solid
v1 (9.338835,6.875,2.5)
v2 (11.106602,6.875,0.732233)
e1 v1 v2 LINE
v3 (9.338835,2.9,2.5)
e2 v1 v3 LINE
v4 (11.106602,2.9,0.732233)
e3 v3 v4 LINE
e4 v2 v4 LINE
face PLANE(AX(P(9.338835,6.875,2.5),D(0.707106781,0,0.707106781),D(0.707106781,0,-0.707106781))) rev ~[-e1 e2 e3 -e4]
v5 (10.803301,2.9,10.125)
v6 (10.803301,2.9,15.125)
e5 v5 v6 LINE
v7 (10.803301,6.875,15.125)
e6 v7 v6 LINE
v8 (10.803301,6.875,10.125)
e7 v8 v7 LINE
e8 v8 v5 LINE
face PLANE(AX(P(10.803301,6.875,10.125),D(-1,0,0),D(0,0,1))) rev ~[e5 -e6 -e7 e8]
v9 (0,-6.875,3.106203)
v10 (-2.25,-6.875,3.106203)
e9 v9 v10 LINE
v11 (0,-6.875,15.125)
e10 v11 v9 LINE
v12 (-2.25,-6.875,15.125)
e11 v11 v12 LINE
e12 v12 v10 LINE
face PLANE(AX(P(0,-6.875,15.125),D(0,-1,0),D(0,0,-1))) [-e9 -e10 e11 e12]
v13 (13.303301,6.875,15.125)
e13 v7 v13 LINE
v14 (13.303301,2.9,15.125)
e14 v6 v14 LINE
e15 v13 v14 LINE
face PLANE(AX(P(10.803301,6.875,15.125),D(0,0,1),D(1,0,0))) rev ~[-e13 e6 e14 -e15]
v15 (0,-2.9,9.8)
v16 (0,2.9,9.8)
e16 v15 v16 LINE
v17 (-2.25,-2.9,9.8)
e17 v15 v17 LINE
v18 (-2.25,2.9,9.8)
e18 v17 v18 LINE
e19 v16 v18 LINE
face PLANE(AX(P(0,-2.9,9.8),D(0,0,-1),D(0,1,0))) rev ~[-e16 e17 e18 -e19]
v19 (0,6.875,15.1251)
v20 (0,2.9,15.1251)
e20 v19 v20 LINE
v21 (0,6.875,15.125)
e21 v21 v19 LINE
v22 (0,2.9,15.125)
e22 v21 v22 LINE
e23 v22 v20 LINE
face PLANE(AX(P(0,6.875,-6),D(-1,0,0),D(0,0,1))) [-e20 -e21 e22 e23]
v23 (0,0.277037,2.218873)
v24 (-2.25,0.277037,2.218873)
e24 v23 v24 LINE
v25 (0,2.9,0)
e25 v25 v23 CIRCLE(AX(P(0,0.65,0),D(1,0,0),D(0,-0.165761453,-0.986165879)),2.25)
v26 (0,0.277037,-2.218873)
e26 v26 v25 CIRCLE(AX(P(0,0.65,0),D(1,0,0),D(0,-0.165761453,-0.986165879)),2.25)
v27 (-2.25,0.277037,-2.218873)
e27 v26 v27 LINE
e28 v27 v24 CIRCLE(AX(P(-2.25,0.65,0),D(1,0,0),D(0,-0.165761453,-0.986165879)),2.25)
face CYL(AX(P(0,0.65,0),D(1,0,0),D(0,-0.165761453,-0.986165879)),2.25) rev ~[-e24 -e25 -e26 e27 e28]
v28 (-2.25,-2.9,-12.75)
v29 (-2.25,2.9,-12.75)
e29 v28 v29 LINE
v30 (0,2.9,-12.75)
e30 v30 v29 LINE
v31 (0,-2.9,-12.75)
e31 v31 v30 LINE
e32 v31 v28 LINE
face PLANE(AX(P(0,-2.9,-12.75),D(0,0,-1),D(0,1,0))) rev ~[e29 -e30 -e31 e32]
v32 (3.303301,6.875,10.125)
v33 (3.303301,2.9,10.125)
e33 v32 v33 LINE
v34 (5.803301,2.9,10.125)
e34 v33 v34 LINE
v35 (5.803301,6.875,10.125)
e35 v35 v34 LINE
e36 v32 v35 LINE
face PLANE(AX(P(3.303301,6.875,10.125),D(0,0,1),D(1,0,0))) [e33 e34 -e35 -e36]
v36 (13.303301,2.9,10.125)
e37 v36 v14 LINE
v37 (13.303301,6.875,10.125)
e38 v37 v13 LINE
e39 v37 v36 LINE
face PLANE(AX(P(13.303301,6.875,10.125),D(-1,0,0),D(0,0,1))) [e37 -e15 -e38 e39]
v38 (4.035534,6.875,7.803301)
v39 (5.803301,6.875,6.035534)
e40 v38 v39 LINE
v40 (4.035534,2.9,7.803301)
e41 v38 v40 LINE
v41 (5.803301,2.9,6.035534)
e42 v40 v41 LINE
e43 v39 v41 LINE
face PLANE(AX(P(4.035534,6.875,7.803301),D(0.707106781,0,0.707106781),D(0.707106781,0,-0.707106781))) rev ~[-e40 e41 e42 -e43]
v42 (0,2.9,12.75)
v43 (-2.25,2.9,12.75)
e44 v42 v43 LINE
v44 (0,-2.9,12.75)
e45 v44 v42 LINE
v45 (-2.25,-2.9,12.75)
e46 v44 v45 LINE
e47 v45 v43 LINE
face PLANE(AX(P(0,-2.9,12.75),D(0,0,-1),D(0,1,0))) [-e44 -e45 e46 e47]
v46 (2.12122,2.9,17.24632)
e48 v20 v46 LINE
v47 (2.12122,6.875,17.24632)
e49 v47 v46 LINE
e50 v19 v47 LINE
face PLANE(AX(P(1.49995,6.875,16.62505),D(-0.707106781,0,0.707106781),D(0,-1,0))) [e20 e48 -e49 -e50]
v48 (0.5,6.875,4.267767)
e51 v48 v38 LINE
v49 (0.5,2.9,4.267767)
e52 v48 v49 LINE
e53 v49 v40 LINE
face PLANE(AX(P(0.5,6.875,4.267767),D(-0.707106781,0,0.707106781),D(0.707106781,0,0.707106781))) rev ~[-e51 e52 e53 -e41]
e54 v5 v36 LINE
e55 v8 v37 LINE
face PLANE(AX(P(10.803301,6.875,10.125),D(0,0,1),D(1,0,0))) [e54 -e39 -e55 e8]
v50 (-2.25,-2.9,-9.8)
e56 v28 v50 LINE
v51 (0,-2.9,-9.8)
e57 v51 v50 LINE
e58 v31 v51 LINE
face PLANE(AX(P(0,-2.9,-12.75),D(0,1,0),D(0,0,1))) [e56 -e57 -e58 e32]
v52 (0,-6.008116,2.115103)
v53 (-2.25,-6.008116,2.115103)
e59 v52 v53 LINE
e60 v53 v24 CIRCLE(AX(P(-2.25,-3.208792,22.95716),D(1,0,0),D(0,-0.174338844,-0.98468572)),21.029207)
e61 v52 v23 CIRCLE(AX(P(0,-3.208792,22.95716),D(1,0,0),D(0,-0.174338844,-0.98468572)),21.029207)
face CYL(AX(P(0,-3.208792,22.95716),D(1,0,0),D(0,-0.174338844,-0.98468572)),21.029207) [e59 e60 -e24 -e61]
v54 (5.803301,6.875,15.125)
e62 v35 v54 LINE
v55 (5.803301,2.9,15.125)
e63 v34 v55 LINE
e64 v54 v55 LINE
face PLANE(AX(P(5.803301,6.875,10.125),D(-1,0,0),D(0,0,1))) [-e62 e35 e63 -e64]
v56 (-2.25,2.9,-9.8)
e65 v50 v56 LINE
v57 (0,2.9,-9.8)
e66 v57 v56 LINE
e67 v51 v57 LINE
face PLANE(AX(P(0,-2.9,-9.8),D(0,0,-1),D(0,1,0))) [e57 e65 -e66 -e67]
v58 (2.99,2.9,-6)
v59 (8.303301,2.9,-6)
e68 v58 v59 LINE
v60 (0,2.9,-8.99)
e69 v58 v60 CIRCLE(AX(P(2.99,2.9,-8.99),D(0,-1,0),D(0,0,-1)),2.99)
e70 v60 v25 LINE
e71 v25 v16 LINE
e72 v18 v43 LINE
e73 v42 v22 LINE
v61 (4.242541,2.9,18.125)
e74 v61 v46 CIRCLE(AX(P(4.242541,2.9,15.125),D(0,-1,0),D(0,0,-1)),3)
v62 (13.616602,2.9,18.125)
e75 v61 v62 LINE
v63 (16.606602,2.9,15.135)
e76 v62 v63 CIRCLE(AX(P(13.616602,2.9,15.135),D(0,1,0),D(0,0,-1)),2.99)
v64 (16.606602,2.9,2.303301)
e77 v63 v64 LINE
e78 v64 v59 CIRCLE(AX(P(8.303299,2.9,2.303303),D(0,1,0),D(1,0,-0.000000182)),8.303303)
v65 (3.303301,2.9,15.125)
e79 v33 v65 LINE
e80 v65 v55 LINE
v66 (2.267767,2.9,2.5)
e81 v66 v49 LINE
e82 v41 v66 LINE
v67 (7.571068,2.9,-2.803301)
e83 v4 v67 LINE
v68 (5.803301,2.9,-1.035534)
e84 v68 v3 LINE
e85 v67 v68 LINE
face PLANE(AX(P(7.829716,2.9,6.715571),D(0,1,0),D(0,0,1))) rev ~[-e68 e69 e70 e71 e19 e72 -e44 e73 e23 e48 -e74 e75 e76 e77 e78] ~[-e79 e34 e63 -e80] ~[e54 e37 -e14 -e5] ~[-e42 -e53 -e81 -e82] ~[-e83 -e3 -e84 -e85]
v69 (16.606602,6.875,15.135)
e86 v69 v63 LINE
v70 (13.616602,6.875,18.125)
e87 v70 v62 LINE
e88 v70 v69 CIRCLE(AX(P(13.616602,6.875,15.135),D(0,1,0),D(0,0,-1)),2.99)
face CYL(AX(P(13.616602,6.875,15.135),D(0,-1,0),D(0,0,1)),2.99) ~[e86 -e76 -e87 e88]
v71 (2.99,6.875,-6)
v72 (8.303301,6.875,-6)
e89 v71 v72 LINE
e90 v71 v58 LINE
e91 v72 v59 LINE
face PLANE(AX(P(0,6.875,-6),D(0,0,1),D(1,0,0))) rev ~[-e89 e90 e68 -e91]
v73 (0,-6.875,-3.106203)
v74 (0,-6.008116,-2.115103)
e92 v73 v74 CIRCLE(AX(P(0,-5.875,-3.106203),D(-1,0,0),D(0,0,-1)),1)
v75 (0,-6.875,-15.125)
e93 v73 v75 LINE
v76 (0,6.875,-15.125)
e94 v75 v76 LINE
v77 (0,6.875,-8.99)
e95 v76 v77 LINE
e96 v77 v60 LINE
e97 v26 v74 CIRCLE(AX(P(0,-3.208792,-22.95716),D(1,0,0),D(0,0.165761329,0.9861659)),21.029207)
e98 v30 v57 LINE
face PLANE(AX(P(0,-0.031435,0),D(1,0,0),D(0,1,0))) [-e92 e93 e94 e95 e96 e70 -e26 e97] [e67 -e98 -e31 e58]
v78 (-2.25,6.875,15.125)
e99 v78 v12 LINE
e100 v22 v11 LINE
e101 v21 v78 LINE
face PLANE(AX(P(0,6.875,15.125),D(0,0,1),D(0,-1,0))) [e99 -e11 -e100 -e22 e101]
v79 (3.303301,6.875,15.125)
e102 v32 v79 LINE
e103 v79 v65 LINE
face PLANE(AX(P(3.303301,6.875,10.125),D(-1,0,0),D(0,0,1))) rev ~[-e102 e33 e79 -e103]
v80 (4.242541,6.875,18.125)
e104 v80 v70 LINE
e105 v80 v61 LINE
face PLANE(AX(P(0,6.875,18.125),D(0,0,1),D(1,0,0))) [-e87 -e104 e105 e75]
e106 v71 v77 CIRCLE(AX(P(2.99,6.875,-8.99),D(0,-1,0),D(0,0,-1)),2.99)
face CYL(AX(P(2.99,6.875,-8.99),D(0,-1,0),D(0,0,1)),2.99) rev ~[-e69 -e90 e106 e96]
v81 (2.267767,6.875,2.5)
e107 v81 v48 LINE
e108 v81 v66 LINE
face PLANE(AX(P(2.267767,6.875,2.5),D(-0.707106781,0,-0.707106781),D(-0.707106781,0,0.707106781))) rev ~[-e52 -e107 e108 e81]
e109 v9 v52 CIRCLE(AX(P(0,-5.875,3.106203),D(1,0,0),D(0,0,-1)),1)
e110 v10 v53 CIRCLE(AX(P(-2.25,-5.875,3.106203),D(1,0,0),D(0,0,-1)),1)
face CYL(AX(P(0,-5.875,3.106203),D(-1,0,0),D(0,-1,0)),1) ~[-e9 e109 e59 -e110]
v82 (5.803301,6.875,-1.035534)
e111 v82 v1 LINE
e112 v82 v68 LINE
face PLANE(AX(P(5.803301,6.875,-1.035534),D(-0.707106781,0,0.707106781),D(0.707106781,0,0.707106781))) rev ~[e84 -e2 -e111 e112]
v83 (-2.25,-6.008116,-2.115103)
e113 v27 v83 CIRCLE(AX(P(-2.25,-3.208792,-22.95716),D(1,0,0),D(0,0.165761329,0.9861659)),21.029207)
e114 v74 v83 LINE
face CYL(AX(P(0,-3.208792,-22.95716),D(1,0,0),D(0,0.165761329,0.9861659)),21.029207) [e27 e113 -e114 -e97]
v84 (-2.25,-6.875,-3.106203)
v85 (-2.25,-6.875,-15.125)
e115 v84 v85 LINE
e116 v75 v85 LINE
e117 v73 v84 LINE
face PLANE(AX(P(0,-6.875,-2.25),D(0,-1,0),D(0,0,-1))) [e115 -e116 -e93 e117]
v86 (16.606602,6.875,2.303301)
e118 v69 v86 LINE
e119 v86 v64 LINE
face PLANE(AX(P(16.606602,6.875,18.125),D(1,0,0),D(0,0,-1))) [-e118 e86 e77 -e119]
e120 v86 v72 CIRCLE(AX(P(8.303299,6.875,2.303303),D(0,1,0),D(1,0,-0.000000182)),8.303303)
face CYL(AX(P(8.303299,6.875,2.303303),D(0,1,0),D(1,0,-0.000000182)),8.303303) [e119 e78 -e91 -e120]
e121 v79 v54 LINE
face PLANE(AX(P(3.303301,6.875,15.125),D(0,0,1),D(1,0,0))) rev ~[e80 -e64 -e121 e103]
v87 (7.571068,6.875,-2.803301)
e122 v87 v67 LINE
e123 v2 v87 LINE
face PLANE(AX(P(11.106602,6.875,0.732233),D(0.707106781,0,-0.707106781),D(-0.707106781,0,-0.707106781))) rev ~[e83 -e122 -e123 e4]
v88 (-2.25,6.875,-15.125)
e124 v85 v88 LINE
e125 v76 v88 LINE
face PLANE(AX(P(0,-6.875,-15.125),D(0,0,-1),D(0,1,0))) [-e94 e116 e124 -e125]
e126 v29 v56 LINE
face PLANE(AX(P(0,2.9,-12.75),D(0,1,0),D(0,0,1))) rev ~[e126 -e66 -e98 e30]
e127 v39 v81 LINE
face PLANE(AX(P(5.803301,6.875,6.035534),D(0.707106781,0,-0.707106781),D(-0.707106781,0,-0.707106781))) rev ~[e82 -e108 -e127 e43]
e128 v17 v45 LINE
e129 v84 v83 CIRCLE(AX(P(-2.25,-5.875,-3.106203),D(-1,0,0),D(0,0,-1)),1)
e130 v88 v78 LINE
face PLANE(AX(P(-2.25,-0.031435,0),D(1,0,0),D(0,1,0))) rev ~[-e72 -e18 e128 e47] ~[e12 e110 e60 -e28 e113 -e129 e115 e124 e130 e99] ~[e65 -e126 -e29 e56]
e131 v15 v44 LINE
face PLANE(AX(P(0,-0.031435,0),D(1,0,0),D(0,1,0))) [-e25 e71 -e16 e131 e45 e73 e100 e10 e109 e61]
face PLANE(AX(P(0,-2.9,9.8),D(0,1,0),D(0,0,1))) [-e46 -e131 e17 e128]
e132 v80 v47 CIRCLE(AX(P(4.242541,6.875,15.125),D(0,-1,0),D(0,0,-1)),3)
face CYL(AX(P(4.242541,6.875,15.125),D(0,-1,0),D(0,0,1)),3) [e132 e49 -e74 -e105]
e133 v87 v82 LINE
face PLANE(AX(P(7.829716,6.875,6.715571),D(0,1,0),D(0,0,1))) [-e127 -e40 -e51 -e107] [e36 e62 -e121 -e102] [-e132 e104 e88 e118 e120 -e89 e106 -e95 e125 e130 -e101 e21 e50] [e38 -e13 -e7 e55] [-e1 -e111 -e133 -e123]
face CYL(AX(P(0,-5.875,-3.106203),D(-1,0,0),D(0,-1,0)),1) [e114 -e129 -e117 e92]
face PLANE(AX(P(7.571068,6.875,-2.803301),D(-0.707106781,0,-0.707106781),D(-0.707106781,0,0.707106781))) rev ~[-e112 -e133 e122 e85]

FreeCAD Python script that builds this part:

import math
import FreeCAD as App
import Part
import Sketcher
from FreeCAD import Vector
Q = App.Units.Quantity


def edges_at(feature, points):
    """Names of the edges that pass closest to the given points."""
    edges = feature.Shape.Edges
    near = lambda p: min(range(len(edges)), key=lambda i: edges[i].distToShape(Part.Vertex(*p))[0])
    return sorted({f"Edge{near(p) + 1}" for p in points})

doc = App.newDocument("Part")
body = doc.addObject("PartDesign::Body", "Body")

# Sketch on YZ plane
sketch1 = body.newObject("Sketcher::SketchObject", "Sketch")
sketch1.AttachmentSupport = (doc.getObject("YZ_Plane"), [""])
sketch1.MapMode = "FlatFace"
sketch1.addGeometry([
    Part.LineSegment(Vector(-6.9, -15.1, 0), Vector(6.9, -15.1, 0)),  # 0
    Part.LineSegment(Vector(6.9, -15.1, 0), Vector(6.9, 15.1, 0)),  # 1
    Part.LineSegment(Vector(6.9, 15.1, 0), Vector(-6.9, 15.1, 0)),  # 2
    Part.LineSegment(Vector(-6.9, 15.1, 0), Vector(-6.9, 2.2, 0)),  # 3
    Part.ArcOfCircle(Part.Circle(Vector(-3.2, 23, 0), Vector(0, 0, 1), 21), math.radians(-100.04), math.radians(-80.46)),  # 4
    Part.ArcOfCircle(Part.Circle(Vector(0.7, 0, 0), Vector(0, 0, 1), 2.2), math.radians(-100), math.radians(100)),  # 5
    Part.ArcOfCircle(Part.Circle(Vector(-3.2, -23, 0), Vector(0, 0, 1), 21), math.radians(80.46), math.radians(100.04)),  # 6
    Part.LineSegment(Vector(-6.9, -2.2, 0), Vector(-6.9, -15.1, 0)),  # 7
    Part.LineSegment(Vector(2.9, -12.8, 0), Vector(-2.9, -12.8, 0)),  # 8
    Part.LineSegment(Vector(-2.9, -12.8, 0), Vector(-2.9, -9.8, 0)),  # 9
    Part.LineSegment(Vector(-2.9, -9.8, 0), Vector(2.9, -9.8, 0)),  # 10
    Part.LineSegment(Vector(2.9, -9.8, 0), Vector(2.9, -12.8, 0)),  # 11
    Part.LineSegment(Vector(2.9, 9.8, 0), Vector(-2.9, 9.8, 0)),  # 12
    Part.LineSegment(Vector(-2.9, 9.8, 0), Vector(-2.9, 12.8, 0)),  # 13
    Part.LineSegment(Vector(-2.9, 12.8, 0), Vector(2.9, 12.8, 0)),  # 14
    Part.LineSegment(Vector(2.9, 12.8, 0), Vector(2.9, 9.8, 0)),  # 15
], False)
sketch1.addConstraint([
    Sketcher.Constraint("Coincident", 0, 2, 1, 1),
    Sketcher.Constraint("Coincident", 1, 2, 2, 1),
    Sketcher.Constraint("Coincident", 2, 2, 3, 1),
    Sketcher.Constraint("Coincident", 3, 2, 4, 1),
    Sketcher.Constraint("Tangent", 4, 2, 5, 2),
    Sketcher.Constraint("Tangent", 5, 1, 6, 1),
    Sketcher.Constraint("Coincident", 6, 2, 7, 1),
    Sketcher.Constraint("Coincident", 7, 2, 0, 1),
    Sketcher.Constraint("Coincident", 8, 2, 9, 1),
    Sketcher.Constraint("Coincident", 9, 2, 10, 1),
    Sketcher.Constraint("Coincident", 10, 2, 11, 1),
    Sketcher.Constraint("Coincident", 11, 2, 8, 1),
    Sketcher.Constraint("Coincident", 12, 2, 13, 1),
    Sketcher.Constraint("Coincident", 13, 2, 14, 1),
    Sketcher.Constraint("Coincident", 14, 2, 15, 1),
    Sketcher.Constraint("Coincident", 15, 2, 12, 1),
    Sketcher.Constraint("Horizontal", 0),
    Sketcher.Constraint("Vertical", 1),
    Sketcher.Constraint("Horizontal", 2),
    Sketcher.Constraint("Vertical", 3),
    Sketcher.Constraint("Vertical", 7),
    Sketcher.Constraint("Horizontal", 8),
    Sketcher.Constraint("Vertical", 9),
    Sketcher.Constraint("Horizontal", 10),
    Sketcher.Constraint("Vertical", 11),
    Sketcher.Constraint("Horizontal", 12),
    Sketcher.Constraint("Vertical", 13),
    Sketcher.Constraint("Horizontal", 14),
    Sketcher.Constraint("Vertical", 15),
    Sketcher.Constraint("Equal", 4, 6),
    Sketcher.Constraint("Symmetric", 0, 2, 2, 2, -1, 1),
    Sketcher.Constraint("Symmetric", 10, 2, 12, 2, -1, 1),
    Sketcher.Constraint("Symmetric", 8, 2, 14, 2, -1, 1),
    Sketcher.Constraint("Symmetric", 4, 3, 6, 3, -1),
    Sketcher.Constraint("Vertical", 3, 2, 6, 2),
    Sketcher.Constraint("Vertical", 9, 2, 12, 2),
    Sketcher.Constraint("Radius", 5, 2.25),
    Sketcher.Constraint("DistanceX", 8, 2, 8, 1, 5.8),
    Sketcher.Constraint("DistanceX", 0, 1, 0, 2, 13.75),
    Sketcher.Constraint("DistanceY", 1, 1, 1, 2, 30.25),
    Sketcher.Constraint("DistanceY", 9, 1, 9, 2, 2.95),
    Sketcher.Constraint("DistanceY", 9, 2, -1, 1, 9.8),
    Sketcher.Constraint("DistanceY", 6, 2, 3, 2, 4.5),
    Sketcher.Constraint("DistanceX", -1, 1, 5, 3, 0.65),
    Sketcher.Constraint("Radius", 4, 21.029207),
])
pad1 = body.newObject("PartDesign::Pad", "Pad")
pad1.Profile = sketch1
pad1.Length = 2.25
pad1.Reversed = True

# Sketch on XZ plane
sketch2 = body.newObject("Sketcher::SketchObject", "Sketch001")
sketch2.AttachmentSupport = (doc.getObject("XZ_Plane"), [""])
sketch2.MapMode = "FlatFace"
sketch2.AttachmentOffset = App.Placement(Vector(0, 0, -6.875), App.Rotation())
sketch2.addGeometry([
    Part.LineSegment(Vector(0, -6, 0), Vector(0, 18.1, 0)),  # 0
    Part.LineSegment(Vector(0, 18.1, 0), Vector(16.6, 18.1, 0)),  # 1
    Part.LineSegment(Vector(16.6, 18.1, 0), Vector(16.6, 2.3, 0)),  # 2
    Part.ArcOfCircle(Part.Circle(Vector(8.3, 2.3, 0), Vector(0, 0, 1), 8.3), math.radians(-90), math.radians(0)),  # 3
    Part.LineSegment(Vector(8.3, -6, 0), Vector(0, -6, 0)),  # 4
    Part.LineSegment(Vector(4, 7.8, 0), Vector(0.5, 4.3, 0)),  # 5
    Part.LineSegment(Vector(0.5, 4.3, 0), Vector(2.3, 2.5, 0)),  # 6
    Part.LineSegment(Vector(2.3, 2.5, 0), Vector(5.8, 6, 0)),  # 7
    Part.LineSegment(Vector(5.8, 6, 0), Vector(4, 7.8, 0)),  # 8
    Part.LineSegment(Vector(3.3, 15.1, 0), Vector(3.3, 10.1, 0)),  # 9
    Part.LineSegment(Vector(3.3, 10.1, 0), Vector(5.8, 10.1, 0)),  # 10
    Part.LineSegment(Vector(5.8, 10.1, 0), Vector(5.8, 15.1, 0)),  # 11
    Part.LineSegment(Vector(5.8, 15.1, 0), Vector(3.3, 15.1, 0)),  # 12
    Part.LineSegment(Vector(9.3, 2.5, 0), Vector(5.8, -1, 0)),  # 13
    Part.LineSegment(Vector(5.8, -1, 0), Vector(7.6, -2.8, 0)),  # 14
    Part.LineSegment(Vector(7.6, -2.8, 0), Vector(11.1, 0.7, 0)),  # 15
    Part.LineSegment(Vector(11.1, 0.7, 0), Vector(9.3, 2.5, 0)),  # 16
    Part.LineSegment(Vector(10.8, 15.1, 0), Vector(10.8, 10.1, 0)),  # 17
    Part.LineSegment(Vector(10.8, 10.1, 0), Vector(13.3, 10.1, 0)),  # 18
    Part.LineSegment(Vector(13.3, 10.1, 0), Vector(13.3, 15.1, 0)),  # 19
    Part.LineSegment(Vector(13.3, 15.1, 0), Vector(10.8, 15.1, 0)),  # 20
], False)
sketch2.addConstraint([
    Sketcher.Constraint("Coincident", 0, 2, 1, 1),
    Sketcher.Constraint("Coincident", 1, 2, 2, 1),
    Sketcher.Constraint("Tangent", 2, 2, 3, 2),
    Sketcher.Constraint("Tangent", 3, 1, 4, 1),
    Sketcher.Constraint("Coincident", 4, 2, 0, 1),
    Sketcher.Constraint("Coincident", 5, 2, 6, 1),
    Sketcher.Constraint("Coincident", 6, 2, 7, 1),
    Sketcher.Constraint("Coincident", 7, 2, 8, 1),
    Sketcher.Constraint("Coincident", 8, 2, 5, 1),
    Sketcher.Constraint("Coincident", 9, 2, 10, 1),
    Sketcher.Constraint("Coincident", 10, 2, 11, 1),
    Sketcher.Constraint("Coincident", 11, 2, 12, 1),
    Sketcher.Constraint("Coincident", 12, 2, 9, 1),
    Sketcher.Constraint("Coincident", 13, 2, 14, 1),
    Sketcher.Constraint("Coincident", 14, 2, 15, 1),
    Sketcher.Constraint("Coincident", 15, 2, 16, 1),
    Sketcher.Constraint("Coincident", 16, 2, 13, 1),
    Sketcher.Constraint("Coincident", 17, 2, 18, 1),
    Sketcher.Constraint("Coincident", 18, 2, 19, 1),
    Sketcher.Constraint("Coincident", 19, 2, 20, 1),
    Sketcher.Constraint("Coincident", 20, 2, 17, 1),
    Sketcher.Constraint("Vertical", 0),
    Sketcher.Constraint("Horizontal", 1),
    Sketcher.Constraint("Vertical", 2),
    Sketcher.Constraint("Horizontal", 4),
    Sketcher.Constraint("Vertical", 9),
    Sketcher.Constraint("Horizontal", 10),
    Sketcher.Constraint("Vertical", 11),
    Sketcher.Constraint("Horizontal", 12),
    Sketcher.Constraint("Vertical", 17),
    Sketcher.Constraint("Horizontal", 18),
    Sketcher.Constraint("Vertical", 19),
    Sketcher.Constraint("Horizontal", 20),
    Sketcher.Constraint("PointOnObject", 0, 2, -2),
    Sketcher.Constraint("Perpendicular", 5, 6),
    Sketcher.Constraint("Perpendicular", 6, 7),
    Sketcher.Constraint("Perpendicular", 7, 8),
    Sketcher.Constraint("Perpendicular", 8, 13),
    Sketcher.Constraint("Perpendicular", 13, 14),
    Sketcher.Constraint("Perpendicular", 14, 15),
    Sketcher.Constraint("Perpendicular", 15, 16),
    Sketcher.Constraint("Horizontal", 6, 2, 16, 2),
    Sketcher.Constraint("Horizontal", 10, 2, 17, 2),
    Sketcher.Constraint("Horizontal", 12, 2, 19, 2),
    Sketcher.Constraint("Vertical", 7, 2, 10, 2),
    Sketcher.Constraint("Vertical", 11, 2, 13, 2),
    Sketcher.Constraint("Equal", 12, 18),
    Sketcher.Constraint("Equal", 7, 13),
    Sketcher.Constraint("Equal", 8, 14),
    Sketcher.Constraint("DistanceY", 9, 2, 9, 1, 5.0),
    Sketcher.Constraint("Angle", 5, Q("-135 deg")),
    Sketcher.Constraint("Distance", 5, 5.0),
    Sketcher.Constraint("DistanceX", 10, 1, 10, 2, 2.5),
    Sketcher.Constraint("DistanceY", 3, 1, -1, 1, 6.0),
    Sketcher.Constraint("DistanceY", 9, 2, 0, 2, 8.0),
    Sketcher.Constraint("DistanceX", 10, 2, 17, 2, 5.0),
    Sketcher.Constraint("Distance", 6, 2.5),
    Sketcher.Constraint("DistanceX", -1, 1, 5, 2, 0.5),
    Sketcher.Constraint("DistanceY", -1, 1, 6, 2, 2.5),
    Sketcher.Constraint("DistanceX", 7, 2, 3, 3, 2.499998),
    Sketcher.Constraint("DistanceY", 3, 3, 8, 2, 5.499998),
    Sketcher.Constraint("DistanceY", 0, 1, 0, 2, 24.125),
])
pad2 = body.newObject("PartDesign::Pad", "Pad001")
pad2.Profile = sketch2
pad2.Length = 3.975
doc.recompute()

fillet = body.newObject("PartDesign::Fillet", "Fillet")
fillet.Base = (pad2, edges_at(pad2, [(0, 4.888, -6), (16.607, 4.888, 18.125)]))
fillet.Radius = 2.99
doc.recompute()

chamfer = body.newObject("PartDesign::Chamfer", "Chamfer")
chamfer.Base = (fillet, edges_at(fillet, [(0, 4.888, 18.125)]))
chamfer.Size = 2.9999
doc.recompute()

fillet2 = body.newObject("PartDesign::Fillet", "Fillet001")
fillet2.Base = (chamfer, edges_at(chamfer, [(3, 4.888, 18.125)]))
fillet2.Radius = 3
doc.recompute()

fillet3 = body.newObject("PartDesign::Fillet", "Fillet002")
fillet3.Base = (fillet2, edges_at(fillet2, [(-1.125, -6.875, 2.25), (-1.125, -6.875, -2.25)]))
fillet3.Radius = 1

doc.recompute()
